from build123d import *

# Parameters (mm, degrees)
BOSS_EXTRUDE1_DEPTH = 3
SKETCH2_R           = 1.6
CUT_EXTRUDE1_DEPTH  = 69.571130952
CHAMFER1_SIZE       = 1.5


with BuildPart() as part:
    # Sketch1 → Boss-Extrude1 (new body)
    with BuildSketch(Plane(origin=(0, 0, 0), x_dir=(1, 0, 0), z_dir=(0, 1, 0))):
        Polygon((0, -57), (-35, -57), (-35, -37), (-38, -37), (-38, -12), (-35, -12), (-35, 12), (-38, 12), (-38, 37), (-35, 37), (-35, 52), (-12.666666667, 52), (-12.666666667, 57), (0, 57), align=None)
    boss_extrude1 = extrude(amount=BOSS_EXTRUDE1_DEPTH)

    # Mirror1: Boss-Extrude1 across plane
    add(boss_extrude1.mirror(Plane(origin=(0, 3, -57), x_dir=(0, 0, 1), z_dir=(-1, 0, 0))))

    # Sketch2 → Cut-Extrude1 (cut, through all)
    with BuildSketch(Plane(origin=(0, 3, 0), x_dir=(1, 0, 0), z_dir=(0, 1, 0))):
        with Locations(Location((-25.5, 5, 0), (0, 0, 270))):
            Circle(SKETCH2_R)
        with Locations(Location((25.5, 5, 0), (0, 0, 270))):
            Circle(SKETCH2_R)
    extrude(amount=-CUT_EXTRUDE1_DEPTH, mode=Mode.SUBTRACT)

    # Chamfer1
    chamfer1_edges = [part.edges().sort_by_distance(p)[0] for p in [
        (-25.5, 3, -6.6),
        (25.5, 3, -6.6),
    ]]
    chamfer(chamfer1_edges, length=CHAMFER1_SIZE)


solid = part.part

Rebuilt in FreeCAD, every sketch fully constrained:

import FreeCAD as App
import Part
import Sketcher

V = App.Vector
Q = App.Units.Quantity


def edges_at(feature, points):
    """Names of the edges that pass closest to the given points."""
    edges = feature.Shape.Edges
    near = lambda p: min(range(len(edges)), key=lambda i: edges[i].distToShape(Part.Vertex(*p))[0])
    return sorted({f"Edge{near(p) + 1}" for p in points})

doc = App.newDocument("Part")
body = doc.addObject("PartDesign::Body", "Body")

sketch1 = body.newObject("Sketcher::SketchObject", "Sketch")
sketch1.AttachmentSupport = (doc.getObject("XZ_Plane"), [""])
sketch1.MapMode = "FlatFace"
sketch1.addGeometry([
    Part.LineSegment(V(-35, 57, 0), V(0, 57, 0)),
    Part.LineSegment(V(0, 57, 0), V(0, -57, 0)),
    Part.LineSegment(V(0, -57, 0), V(-12.666667, -57, 0)),
    Part.LineSegment(V(-12.666667, -57, 0), V(-12.666667, -52, 0)),
    Part.LineSegment(V(-12.666667, -52, 0), V(-35, -52, 0)),
    Part.LineSegment(V(-35, -52, 0), V(-35, -37, 0)),
    Part.LineSegment(V(-35, -37, 0), V(-38, -37, 0)),
    Part.LineSegment(V(-38, -37, 0), V(-38, -12, 0)),
    Part.LineSegment(V(-38, -12, 0), V(-35, -12, 0)),
    Part.LineSegment(V(-35, -12, 0), V(-35, 12, 0)),
    Part.LineSegment(V(-35, 12, 0), V(-38, 12, 0)),
    Part.LineSegment(V(-38, 12, 0), V(-38, 37, 0)),
    Part.LineSegment(V(-38, 37, 0), V(-35, 37, 0)),
    Part.LineSegment(V(-35, 37, 0), V(-35, 57, 0)),
], False)
sketch1.addConstraint([
    Sketcher.Constraint("Coincident", 0, 2, 1, 1),
    Sketcher.Constraint("Coincident", 1, 2, 2, 1),
    Sketcher.Constraint("Coincident", 2, 2, 3, 1),
    Sketcher.Constraint("Coincident", 3, 2, 4, 1),
    Sketcher.Constraint("Coincident", 4, 2, 5, 1),
    Sketcher.Constraint("Coincident", 5, 2, 6, 1),
    Sketcher.Constraint("Coincident", 6, 2, 7, 1),
    Sketcher.Constraint("Coincident", 7, 2, 8, 1),
    Sketcher.Constraint("Coincident", 8, 2, 9, 1),
    Sketcher.Constraint("Coincident", 9, 2, 10, 1),
    Sketcher.Constraint("Coincident", 10, 2, 11, 1),
    Sketcher.Constraint("Coincident", 11, 2, 12, 1),
    Sketcher.Constraint("Coincident", 12, 2, 13, 1),
    Sketcher.Constraint("Coincident", 13, 2, 0, 1),
    Sketcher.Constraint("Horizontal", 0),
    Sketcher.Constraint("Vertical", 1),
    Sketcher.Constraint("Horizontal", 2),
    Sketcher.Constraint("Vertical", 3),
    Sketcher.Constraint("Horizontal", 4),
    Sketcher.Constraint("Vertical", 5),
    Sketcher.Constraint("Horizontal", 6),
    Sketcher.Constraint("Vertical", 7),
    Sketcher.Constraint("Horizontal", 8),
    Sketcher.Constraint("Vertical", 9),
    Sketcher.Constraint("Horizontal", 10),
    Sketcher.Constraint("Vertical", 11),
    Sketcher.Constraint("Horizontal", 12),
    Sketcher.Constraint("Vertical", 13),
    Sketcher.Constraint("Symmetric", 0, 2, 1, 2, -1, 1),
    Sketcher.Constraint("Symmetric", 7, 2, 10, 2, -1),
    Sketcher.Constraint("Symmetric", 5, 2, 12, 2, -1),
    Sketcher.Constraint("Vertical", 5, 2, 8, 2),
    Sketcher.Constraint("DistanceX", 0, 1, 0, 2, Q("35 mm")),
    Sketcher.Constraint("DistanceX", 6, 2, 6, 1, Q("3 mm")),
    Sketcher.Constraint("DistanceY", 1, 2, 1, 1, Q("114 mm")),
    Sketcher.Constraint("DistanceY", 3, 1, 3, 2, Q("5 mm")),
    Sketcher.Constraint("DistanceY", 5, 1, 5, 2, Q("15 mm")),
    Sketcher.Constraint("DistanceY", 7, 1, 7, 2, Q("25 mm")),
    Sketcher.Constraint("DistanceX", 2, 2, 2, 1, Q("12.666667 mm")),
])
pad1 = body.newObject("PartDesign::Pad", "Pad")
pad1.Profile = sketch1
pad1.Length = 3
pad1.Reversed = True
doc.recompute()

mirrored = body.newObject("PartDesign::Mirrored", "Mirrored")
mirrored.Originals = [pad1]
mirrored.MirrorPlane = (doc.getObject("YZ_Plane"), [""])
body.Tip = mirrored

sketch2 = body.newObject("Sketcher::SketchObject", "Sketch001")
sketch2.AttachmentSupport = (doc.getObject("XZ_Plane"), [""])
sketch2.MapMode = "FlatFace"
sketch2.AttachmentOffset = App.Placement(V(0, 0, -3), App.Rotation())
sketch2.addGeometry([
    Part.Circle(V(-25.5, -5, 0), V(0, 0, 1), 1.6),
    Part.Circle(V(25.5, -5, 0), V(0, 0, 1), 1.6),
], False)
sketch2.addConstraint([
    Sketcher.Constraint("Equal", 0, 1),
    Sketcher.Constraint("Symmetric", 0, 3, 1, 3, -2),
    Sketcher.Constraint("Diameter", 0, Q("3.2 mm")),
    Sketcher.Constraint("DistanceY", 0, 3, -1, 1, Q("5 mm")),
    Sketcher.Constraint("DistanceX", 0, 3, 1, 3, Q("51 mm")),
])
pocket1 = body.newObject("PartDesign::Pocket", "Pocket")
pocket1.Profile = sketch2
pocket1.Type = "ThroughAll"
pocket1.Reversed = True
doc.recompute()

chamfer = body.newObject("PartDesign::Chamfer", "Chamfer")
chamfer.Base = (pocket1, edges_at(pocket1, [(-25.5, 3, -6.6), (25.5, 3, -6.6)]))
chamfer.Size = 1.5

doc.recompute()
